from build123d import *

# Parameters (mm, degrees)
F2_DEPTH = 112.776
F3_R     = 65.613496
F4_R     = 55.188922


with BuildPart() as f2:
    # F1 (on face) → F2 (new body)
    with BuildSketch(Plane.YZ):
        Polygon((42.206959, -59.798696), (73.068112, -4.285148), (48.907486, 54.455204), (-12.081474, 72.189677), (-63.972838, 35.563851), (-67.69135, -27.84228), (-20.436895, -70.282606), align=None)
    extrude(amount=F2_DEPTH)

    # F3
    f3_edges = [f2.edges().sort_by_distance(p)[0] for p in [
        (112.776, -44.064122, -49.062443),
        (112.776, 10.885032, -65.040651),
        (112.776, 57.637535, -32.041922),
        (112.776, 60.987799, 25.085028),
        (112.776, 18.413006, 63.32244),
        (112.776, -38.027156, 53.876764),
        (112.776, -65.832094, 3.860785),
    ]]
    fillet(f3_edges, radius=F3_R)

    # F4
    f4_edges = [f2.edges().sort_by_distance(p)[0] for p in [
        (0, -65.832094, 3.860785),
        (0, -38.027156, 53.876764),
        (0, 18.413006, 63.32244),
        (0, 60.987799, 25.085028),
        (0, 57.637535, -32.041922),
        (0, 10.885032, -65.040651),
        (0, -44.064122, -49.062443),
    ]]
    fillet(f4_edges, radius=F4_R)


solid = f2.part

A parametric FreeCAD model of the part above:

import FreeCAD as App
import Part
import Sketcher
from FreeCAD import Vector
Q = App.Units.Quantity


def edges_at(feature, points):
    """Names of the edges that pass closest to the given points."""
    edges = feature.Shape.Edges
    near = lambda p: min(range(len(edges)), key=lambda i: edges[i].distToShape(Part.Vertex(*p))[0])
    return sorted({f"Edge{near(p) + 1}" for p in points})


def add_polygon(sketch, points):
    """Adds a closed chain of lines whose ends are joined by coincident constraints."""
    first, n = sketch.GeometryCount, len(points)
    for a, b in zip(points, points[1:] + points[:1]):
        sketch.addGeometry(Part.LineSegment(App.Vector(*a, 0), App.Vector(*b, 0)), False)
    for i in range(n):
        sketch.addConstraint(Sketcher.Constraint("Coincident", first + i, 2, first + (i + 1) % n, 1))

doc = App.newDocument("Part")
body = doc.addObject("PartDesign::Body", "Body")

sketch1 = doc.addObject("Sketcher::SketchObject", "Sketch")
body.addObject(sketch1)
sketch1.AttachmentSupport = (doc.YZ_Plane, [""])
sketch1.MapMode = "FlatFace"
add_polygon(sketch1, [(42.206959, -59.798696), (73.068112, -4.285148), (48.907486, 54.455204), (-12.081474, 72.189677), (-63.972838, 35.563851), (-67.69135, -27.84228), (-20.436895, -70.282606)])
sketch1.addConstraint([
    Sketcher.Constraint("Equal", 0, 1),
    Sketcher.Constraint("Equal", 1, 2),
    Sketcher.Constraint("Equal", 2, 3),
    Sketcher.Constraint("Equal", 3, 4),
    Sketcher.Constraint("Equal", 4, 5),
    Sketcher.Constraint("Equal", 5, 6),
    Sketcher.Constraint("DistanceY", 0, 2, 3, 2, 39.848999),
    Sketcher.Constraint("DistanceY", 6, 2, 1, 2, 114.2539),
    Sketcher.Constraint("DistanceX", -1, 1, 0, 2, 73.068112),
    Sketcher.Constraint("DistanceY", 0, 2, -1, 1, 4.285148),
    Sketcher.Constraint("DistanceX", 3, 2, -1, 1, 63.972838),
    Sketcher.Constraint("DistanceX", 4, 2, -1, 1, 67.69135),
    Sketcher.Constraint("DistanceY", 4, 2, -1, 1, 27.84228),
    Sketcher.Constraint("DistanceX", -1, 1, 6, 2, 42.206959),
])
pad1 = doc.addObject("PartDesign::Pad", "Pad")
body.addObject(pad1)
pad1.Profile = sketch1
pad1.Length = Q("4.44 in")
doc.recompute()

fillet = doc.addObject("PartDesign::Fillet", "Fillet")
body.addObject(fillet)
fillet.Base = (pad1, edges_at(pad1, [
    (112.776, -44.064, -49.062),
    (112.776, 10.885, -65.041),
    (112.776, 57.638, -32.042),
    (112.776, 60.988, 25.085),
    (112.776, 18.413, 63.322),
    (112.776, -38.027, 53.877),
    (112.776, -65.832, 3.861),
]))
fillet.Radius = 65.613496
doc.recompute()

fillet2 = doc.addObject("PartDesign::Fillet", "Fillet001")
body.addObject(fillet2)
fillet2.Base = (fillet, edges_at(fillet, [
    (0, -65.832, 3.861),
    (0, -38.027, 53.877),
    (0, 18.413, 63.322),
    (0, 60.988, 25.085),
    (0, 57.638, -32.042),
    (0, 10.885, -65.041),
    (0, -44.064, -49.062),
]))
fillet2.Radius = 55.188922

doc.recompute()
